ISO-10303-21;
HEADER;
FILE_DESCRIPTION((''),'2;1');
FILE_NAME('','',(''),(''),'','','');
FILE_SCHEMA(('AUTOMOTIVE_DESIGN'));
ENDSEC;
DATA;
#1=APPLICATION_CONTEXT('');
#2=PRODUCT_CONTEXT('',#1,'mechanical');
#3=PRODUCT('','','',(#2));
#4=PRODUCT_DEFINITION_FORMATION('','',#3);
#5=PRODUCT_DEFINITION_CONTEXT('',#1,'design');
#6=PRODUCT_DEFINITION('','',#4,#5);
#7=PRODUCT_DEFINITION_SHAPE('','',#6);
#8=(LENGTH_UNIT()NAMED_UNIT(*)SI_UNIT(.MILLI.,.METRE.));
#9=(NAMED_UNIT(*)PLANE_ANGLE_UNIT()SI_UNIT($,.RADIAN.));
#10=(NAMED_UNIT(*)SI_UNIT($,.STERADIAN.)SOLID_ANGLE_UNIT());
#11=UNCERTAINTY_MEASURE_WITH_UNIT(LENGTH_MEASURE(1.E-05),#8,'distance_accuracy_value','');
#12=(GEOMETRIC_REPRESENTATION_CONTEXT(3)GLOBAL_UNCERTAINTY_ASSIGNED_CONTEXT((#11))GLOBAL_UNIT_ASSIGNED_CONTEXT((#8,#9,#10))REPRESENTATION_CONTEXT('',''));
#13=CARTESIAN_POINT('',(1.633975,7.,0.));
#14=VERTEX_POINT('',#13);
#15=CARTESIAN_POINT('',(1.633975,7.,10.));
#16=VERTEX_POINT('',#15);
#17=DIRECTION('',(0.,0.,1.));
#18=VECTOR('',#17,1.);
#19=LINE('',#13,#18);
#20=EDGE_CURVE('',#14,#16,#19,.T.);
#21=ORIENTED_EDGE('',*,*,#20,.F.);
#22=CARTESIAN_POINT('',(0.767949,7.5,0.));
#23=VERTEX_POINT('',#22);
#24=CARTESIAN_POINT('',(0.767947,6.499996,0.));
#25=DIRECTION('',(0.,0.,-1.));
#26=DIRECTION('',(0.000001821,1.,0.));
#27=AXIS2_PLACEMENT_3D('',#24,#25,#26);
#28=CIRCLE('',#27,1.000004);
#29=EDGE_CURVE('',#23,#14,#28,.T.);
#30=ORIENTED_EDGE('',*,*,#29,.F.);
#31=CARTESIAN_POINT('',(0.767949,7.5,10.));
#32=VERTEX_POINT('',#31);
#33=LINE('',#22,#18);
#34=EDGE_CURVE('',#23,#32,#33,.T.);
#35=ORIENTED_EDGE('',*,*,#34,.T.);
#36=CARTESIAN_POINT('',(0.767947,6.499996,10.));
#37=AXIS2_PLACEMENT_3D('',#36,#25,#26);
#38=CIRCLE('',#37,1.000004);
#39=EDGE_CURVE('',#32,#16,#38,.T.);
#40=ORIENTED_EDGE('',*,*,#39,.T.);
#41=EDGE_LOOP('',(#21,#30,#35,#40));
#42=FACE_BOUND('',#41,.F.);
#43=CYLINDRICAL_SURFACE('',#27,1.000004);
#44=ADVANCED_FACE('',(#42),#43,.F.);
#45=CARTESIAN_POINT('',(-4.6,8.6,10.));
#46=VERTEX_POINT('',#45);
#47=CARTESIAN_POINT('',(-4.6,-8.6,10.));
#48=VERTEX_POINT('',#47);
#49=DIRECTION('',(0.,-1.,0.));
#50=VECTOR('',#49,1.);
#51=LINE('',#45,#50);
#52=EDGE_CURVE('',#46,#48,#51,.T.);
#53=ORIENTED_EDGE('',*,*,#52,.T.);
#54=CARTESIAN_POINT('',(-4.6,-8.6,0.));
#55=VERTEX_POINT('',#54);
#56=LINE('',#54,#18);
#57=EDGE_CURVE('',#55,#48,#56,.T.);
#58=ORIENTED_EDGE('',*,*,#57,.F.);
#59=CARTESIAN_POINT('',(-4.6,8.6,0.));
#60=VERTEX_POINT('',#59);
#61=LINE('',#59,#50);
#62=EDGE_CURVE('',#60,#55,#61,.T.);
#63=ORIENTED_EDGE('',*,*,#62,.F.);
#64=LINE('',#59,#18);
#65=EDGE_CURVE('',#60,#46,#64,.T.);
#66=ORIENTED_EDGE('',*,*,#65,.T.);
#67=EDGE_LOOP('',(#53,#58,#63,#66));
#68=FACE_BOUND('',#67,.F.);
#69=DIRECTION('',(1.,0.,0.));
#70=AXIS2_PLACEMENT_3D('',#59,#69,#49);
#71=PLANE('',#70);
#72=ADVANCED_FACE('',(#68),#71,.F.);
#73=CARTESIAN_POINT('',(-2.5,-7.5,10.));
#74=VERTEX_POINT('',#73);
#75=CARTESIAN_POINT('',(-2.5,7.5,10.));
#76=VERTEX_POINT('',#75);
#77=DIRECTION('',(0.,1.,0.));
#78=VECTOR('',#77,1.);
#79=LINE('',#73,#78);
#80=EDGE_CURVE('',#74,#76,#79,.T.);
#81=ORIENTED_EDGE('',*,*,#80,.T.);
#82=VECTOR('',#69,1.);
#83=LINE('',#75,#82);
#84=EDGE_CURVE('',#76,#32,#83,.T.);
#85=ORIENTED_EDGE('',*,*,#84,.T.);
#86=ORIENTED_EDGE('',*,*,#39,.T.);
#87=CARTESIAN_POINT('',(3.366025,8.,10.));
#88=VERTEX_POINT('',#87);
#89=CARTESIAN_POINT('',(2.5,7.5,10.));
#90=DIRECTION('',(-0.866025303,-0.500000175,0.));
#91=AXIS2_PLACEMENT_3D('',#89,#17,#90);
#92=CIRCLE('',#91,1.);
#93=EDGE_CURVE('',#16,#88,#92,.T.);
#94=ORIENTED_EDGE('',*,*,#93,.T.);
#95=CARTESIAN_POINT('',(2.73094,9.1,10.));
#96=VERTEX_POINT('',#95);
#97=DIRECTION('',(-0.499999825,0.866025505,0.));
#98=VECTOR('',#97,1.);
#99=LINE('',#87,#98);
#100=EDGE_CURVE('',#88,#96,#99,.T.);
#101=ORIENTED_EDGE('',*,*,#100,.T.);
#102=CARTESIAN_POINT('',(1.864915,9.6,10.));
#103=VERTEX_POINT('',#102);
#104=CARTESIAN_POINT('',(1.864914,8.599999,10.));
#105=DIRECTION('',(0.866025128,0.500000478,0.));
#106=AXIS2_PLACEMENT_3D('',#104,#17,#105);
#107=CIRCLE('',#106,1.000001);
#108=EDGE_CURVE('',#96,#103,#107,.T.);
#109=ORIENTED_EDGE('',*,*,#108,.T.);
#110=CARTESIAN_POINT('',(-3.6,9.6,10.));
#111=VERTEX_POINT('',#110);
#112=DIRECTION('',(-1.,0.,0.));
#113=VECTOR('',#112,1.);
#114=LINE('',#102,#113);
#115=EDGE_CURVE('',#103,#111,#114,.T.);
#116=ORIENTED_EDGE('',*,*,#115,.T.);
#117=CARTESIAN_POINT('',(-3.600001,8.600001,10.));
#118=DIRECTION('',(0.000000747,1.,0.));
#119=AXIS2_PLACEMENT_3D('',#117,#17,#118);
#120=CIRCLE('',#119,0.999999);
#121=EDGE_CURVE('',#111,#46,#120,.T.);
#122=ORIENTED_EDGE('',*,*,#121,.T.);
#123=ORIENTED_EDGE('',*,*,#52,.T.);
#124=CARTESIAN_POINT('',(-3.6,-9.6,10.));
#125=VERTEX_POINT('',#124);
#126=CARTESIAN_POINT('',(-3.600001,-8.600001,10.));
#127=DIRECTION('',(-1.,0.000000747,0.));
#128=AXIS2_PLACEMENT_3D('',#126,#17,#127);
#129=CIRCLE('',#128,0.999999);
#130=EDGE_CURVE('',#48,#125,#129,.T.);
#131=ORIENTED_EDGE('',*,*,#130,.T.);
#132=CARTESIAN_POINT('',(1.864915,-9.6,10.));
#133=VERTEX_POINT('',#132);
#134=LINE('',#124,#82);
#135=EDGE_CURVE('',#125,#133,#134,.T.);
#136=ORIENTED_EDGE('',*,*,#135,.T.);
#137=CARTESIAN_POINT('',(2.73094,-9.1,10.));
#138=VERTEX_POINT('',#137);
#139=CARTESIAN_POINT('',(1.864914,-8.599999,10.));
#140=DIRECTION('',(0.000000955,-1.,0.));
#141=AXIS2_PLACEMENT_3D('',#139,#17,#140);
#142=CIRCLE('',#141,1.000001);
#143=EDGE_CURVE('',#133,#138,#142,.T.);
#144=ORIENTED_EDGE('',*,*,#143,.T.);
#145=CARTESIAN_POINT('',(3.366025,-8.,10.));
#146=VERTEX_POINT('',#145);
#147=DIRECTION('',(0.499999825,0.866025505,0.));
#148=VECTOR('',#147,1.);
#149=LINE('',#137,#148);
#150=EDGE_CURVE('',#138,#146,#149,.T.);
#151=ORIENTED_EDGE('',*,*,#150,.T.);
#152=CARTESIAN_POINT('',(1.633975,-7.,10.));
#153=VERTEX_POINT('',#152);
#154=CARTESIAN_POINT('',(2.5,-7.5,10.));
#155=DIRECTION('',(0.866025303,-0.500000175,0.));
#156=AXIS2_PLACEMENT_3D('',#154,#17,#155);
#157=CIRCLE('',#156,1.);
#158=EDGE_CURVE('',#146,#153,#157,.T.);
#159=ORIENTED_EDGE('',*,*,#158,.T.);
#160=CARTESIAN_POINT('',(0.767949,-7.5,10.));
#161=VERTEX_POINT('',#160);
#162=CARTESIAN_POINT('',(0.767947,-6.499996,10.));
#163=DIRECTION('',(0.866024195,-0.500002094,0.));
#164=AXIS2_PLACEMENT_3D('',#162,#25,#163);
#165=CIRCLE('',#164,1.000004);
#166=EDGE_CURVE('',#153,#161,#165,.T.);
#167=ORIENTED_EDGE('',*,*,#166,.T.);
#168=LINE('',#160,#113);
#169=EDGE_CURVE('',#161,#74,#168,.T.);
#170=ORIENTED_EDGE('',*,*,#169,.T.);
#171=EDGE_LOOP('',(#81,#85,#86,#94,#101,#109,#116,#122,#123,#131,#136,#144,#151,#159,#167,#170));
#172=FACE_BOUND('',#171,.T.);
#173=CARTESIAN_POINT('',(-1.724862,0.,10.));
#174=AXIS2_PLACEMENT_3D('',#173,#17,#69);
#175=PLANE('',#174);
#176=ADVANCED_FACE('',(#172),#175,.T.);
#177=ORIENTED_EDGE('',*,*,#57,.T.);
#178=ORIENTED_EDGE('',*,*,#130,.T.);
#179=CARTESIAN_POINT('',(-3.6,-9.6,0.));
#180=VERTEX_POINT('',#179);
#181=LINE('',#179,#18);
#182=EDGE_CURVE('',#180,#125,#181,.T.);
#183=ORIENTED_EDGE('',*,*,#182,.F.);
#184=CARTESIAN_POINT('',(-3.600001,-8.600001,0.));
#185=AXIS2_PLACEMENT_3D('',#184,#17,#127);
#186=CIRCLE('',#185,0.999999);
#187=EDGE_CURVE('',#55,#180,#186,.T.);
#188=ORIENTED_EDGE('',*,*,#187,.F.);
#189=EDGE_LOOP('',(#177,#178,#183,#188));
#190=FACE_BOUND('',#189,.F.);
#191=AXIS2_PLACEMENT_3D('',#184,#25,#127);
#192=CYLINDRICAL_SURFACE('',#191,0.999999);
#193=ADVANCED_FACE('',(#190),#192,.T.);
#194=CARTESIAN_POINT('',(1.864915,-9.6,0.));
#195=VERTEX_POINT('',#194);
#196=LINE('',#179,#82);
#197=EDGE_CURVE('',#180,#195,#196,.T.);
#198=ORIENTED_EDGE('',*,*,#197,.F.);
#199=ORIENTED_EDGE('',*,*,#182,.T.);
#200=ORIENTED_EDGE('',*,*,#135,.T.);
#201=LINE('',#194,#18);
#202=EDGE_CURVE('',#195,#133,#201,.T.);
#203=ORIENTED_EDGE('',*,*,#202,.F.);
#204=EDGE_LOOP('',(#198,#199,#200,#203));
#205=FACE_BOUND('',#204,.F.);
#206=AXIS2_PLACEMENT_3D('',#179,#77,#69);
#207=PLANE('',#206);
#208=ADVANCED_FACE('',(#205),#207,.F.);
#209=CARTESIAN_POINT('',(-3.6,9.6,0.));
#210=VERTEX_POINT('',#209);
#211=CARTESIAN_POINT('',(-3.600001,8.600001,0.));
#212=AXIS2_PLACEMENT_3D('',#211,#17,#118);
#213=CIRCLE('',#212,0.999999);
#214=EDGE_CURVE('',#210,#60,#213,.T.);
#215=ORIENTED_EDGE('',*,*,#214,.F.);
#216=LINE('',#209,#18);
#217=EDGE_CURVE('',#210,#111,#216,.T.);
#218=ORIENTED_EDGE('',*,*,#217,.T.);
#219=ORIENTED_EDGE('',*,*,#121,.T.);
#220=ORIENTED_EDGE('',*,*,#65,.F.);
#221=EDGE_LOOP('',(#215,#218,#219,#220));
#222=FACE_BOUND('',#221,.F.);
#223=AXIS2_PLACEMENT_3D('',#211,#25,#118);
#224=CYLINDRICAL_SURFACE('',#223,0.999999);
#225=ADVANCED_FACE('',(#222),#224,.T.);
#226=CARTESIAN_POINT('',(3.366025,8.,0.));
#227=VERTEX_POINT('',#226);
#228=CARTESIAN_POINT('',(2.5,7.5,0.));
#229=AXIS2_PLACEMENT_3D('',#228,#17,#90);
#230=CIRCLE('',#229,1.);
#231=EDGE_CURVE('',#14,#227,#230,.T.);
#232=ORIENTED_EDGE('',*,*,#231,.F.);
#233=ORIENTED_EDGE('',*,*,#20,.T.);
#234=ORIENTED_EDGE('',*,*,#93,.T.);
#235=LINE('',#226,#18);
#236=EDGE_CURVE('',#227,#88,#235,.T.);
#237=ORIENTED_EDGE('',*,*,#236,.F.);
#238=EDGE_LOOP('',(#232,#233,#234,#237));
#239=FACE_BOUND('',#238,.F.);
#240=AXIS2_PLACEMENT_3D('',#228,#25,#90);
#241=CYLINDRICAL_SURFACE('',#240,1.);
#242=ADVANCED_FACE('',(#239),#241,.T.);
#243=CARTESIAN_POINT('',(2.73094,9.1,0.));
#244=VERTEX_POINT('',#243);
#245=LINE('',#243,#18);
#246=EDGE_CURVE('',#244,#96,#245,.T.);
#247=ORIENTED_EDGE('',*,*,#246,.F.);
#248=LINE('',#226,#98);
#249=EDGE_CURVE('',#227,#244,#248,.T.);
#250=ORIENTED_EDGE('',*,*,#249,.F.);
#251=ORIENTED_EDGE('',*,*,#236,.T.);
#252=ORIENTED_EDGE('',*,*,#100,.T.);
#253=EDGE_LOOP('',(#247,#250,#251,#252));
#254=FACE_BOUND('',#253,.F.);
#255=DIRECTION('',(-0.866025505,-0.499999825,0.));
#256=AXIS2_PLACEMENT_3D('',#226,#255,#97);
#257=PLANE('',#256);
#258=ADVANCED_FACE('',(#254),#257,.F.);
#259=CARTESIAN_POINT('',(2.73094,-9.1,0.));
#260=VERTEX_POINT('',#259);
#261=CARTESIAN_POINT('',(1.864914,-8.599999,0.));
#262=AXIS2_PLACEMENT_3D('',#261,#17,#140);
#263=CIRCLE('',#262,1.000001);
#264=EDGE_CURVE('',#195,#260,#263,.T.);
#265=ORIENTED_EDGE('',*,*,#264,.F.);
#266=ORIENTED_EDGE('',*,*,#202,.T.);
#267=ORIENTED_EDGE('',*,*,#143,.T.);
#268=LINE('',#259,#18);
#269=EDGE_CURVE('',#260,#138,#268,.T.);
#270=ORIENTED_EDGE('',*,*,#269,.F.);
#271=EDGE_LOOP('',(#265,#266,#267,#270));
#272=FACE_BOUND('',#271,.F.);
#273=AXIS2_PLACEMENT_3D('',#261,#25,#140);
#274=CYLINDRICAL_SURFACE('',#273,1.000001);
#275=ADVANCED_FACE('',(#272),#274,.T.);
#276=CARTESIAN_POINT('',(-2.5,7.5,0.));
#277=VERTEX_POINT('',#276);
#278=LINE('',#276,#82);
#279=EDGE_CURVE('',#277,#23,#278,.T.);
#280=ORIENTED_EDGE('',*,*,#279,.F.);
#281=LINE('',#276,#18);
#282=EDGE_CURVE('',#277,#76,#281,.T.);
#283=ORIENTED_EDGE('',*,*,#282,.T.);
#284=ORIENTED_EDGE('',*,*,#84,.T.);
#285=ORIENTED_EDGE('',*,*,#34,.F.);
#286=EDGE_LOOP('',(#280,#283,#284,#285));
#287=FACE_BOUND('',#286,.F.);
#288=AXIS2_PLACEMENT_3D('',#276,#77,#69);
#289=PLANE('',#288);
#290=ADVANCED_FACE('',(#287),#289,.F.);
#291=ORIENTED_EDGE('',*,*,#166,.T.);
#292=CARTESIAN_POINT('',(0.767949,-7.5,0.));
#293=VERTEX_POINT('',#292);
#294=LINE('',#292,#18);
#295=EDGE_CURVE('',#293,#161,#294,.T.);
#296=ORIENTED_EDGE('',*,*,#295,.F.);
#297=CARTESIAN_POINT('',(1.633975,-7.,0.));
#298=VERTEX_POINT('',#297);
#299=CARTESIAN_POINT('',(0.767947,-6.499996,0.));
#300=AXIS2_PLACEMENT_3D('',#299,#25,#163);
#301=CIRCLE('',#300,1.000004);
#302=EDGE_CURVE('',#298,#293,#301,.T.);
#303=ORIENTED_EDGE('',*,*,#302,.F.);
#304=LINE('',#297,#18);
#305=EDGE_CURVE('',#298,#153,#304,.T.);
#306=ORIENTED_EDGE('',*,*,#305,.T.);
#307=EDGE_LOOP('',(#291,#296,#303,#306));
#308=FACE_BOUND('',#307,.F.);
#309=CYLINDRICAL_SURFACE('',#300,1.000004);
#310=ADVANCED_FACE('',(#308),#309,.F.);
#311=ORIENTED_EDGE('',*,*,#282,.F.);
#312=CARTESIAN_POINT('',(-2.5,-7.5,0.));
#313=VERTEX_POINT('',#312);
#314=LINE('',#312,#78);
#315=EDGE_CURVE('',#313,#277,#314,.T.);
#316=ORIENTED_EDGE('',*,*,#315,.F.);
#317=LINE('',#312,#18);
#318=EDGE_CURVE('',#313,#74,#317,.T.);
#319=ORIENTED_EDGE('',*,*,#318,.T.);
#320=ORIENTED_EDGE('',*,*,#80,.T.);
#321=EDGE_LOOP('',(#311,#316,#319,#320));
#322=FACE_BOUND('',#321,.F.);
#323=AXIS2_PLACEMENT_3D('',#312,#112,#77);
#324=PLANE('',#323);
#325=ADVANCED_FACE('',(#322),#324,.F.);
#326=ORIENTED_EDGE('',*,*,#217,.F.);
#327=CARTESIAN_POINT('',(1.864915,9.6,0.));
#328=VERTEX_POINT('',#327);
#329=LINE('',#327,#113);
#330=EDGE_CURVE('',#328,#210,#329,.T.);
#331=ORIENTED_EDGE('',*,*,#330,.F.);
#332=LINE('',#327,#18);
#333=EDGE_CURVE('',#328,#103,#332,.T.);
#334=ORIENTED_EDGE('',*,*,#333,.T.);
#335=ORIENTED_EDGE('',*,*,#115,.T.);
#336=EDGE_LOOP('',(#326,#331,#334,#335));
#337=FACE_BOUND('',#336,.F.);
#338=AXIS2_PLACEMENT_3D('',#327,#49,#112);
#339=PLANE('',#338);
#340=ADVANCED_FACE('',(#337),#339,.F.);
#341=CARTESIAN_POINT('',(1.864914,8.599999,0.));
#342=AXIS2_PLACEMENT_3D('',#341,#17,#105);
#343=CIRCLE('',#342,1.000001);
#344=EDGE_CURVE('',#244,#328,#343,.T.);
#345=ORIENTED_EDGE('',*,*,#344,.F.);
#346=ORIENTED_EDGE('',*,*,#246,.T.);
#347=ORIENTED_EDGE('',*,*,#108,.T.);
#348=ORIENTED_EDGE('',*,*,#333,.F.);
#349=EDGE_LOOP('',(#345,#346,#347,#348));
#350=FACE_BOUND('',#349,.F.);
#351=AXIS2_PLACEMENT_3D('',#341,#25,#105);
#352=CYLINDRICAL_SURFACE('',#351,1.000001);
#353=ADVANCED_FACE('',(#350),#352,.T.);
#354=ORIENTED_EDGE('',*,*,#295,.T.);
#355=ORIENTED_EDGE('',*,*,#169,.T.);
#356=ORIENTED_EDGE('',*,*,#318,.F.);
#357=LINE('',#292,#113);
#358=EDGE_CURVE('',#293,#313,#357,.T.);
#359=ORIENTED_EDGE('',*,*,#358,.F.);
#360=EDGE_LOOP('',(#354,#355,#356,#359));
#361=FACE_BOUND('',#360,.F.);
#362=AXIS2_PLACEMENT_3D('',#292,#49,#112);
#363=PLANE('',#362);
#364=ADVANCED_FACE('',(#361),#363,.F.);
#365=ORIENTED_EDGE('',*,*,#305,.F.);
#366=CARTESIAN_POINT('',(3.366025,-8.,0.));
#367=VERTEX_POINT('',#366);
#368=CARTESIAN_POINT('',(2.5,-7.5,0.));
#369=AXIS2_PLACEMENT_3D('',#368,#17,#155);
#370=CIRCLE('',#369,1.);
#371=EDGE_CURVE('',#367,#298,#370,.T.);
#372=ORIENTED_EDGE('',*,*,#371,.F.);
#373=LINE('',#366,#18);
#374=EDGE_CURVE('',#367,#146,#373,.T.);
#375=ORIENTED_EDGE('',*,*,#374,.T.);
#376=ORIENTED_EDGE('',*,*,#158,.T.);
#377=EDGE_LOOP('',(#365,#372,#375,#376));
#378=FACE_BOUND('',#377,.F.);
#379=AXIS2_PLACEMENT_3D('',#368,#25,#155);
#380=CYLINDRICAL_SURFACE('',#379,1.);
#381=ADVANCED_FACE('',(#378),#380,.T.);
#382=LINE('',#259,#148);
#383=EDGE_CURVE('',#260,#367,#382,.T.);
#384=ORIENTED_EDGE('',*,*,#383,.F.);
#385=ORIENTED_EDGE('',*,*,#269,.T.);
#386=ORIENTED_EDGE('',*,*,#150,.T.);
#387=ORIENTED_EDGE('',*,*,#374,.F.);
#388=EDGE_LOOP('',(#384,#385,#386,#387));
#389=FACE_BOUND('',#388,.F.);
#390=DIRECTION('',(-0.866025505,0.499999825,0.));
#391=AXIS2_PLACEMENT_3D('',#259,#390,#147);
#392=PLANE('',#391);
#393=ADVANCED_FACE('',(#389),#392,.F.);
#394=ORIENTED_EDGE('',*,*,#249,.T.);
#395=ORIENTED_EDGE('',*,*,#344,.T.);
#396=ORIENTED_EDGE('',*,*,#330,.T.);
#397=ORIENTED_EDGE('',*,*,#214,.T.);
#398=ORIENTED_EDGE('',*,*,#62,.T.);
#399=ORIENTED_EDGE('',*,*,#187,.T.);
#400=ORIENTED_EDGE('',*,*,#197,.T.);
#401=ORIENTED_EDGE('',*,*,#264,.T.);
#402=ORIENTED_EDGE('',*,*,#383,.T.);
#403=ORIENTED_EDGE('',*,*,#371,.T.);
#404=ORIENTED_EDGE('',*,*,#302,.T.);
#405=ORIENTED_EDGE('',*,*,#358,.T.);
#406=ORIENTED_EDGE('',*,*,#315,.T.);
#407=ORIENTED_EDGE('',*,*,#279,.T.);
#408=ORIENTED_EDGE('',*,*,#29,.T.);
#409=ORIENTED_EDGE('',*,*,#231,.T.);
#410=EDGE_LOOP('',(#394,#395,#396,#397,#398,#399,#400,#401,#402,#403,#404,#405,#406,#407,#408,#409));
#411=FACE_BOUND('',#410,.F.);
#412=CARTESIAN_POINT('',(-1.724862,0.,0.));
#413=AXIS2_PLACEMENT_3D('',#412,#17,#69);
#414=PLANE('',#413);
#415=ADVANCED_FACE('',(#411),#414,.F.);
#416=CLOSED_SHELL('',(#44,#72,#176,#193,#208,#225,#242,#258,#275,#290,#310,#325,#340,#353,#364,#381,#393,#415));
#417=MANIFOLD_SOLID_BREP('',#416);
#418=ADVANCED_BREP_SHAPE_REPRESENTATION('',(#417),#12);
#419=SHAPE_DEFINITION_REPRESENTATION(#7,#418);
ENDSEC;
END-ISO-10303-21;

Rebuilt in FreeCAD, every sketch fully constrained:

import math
import FreeCAD as App
import Part
import Sketcher

V = App.Vector
Q = App.Units.Quantity

doc = App.newDocument("Part")
body = doc.addObject("PartDesign::Body", "Body")

# Sketch on XY plane
sketch1 = doc.addObject("Sketcher::SketchObject", "Sketch")
body.addObject(sketch1)
sketch1.AttachmentSupport = (doc.XY_Plane, [""])
sketch1.MapMode = "FlatFace"
sketch1.addGeometry([
    Part.LineSegment(V(-2.5, -7.5, 0), V(-2.5, 7.5, 0)),  # 0
    Part.LineSegment(V(-2.5, 7.5, 0), V(0.767949, 7.5, 0)),  # 1
    Part.ArcOfCircle(Part.Circle(V(0.767947, 6.499996, 0), V(0, 0, 1), 1.000004), math.radians(30.000139), math.radians(89.999896)),  # 2
    Part.ArcOfCircle(Part.Circle(V(2.5, 7.5, 0), V(0, 0, 1), 1), math.radians(-149.999988), math.radians(30.000012)),  # 3
    Part.LineSegment(V(3.366025, 8, 0), V(2.73094, 9.1, 0)),  # 4
    Part.ArcOfCircle(Part.Circle(V(1.864914, 8.599999, 0), V(0, 0, 1), 1.000001), math.radians(30.000032), math.radians(89.999945)),  # 5
    Part.LineSegment(V(1.864915, 9.6, 0), V(-3.6, 9.6, 0)),  # 6
    Part.ArcOfCircle(Part.Circle(V(-3.600001, 8.600001, 0), V(0, 0, 1), 0.999999), math.radians(89.999957), math.radians(180.000043)),  # 7
    Part.LineSegment(V(-4.6, 8.6, 0), V(-4.6, -8.6, 0)),  # 8
    Part.ArcOfCircle(Part.Circle(V(-3.600001, -8.600001, 0), V(0, 0, 1), 0.999999), math.radians(179.999957), math.radians(270.000043)),  # 9
    Part.LineSegment(V(-3.6, -9.6, 0), V(1.864915, -9.6, 0)),  # 10
    Part.ArcOfCircle(Part.Circle(V(1.864914, -8.599999, 0), V(0, 0, 1), 1.000001), math.radians(-89.999945), math.radians(-30.000032)),  # 11
    Part.LineSegment(V(2.73094, -9.1, 0), V(3.366025, -8, 0)),  # 12
    Part.ArcOfCircle(Part.Circle(V(2.5, -7.5, 0), V(0, 0, 1), 1), math.radians(-30.000012), math.radians(149.999988)),  # 13
    Part.ArcOfCircle(Part.Circle(V(0.767947, -6.499996, 0), V(0, 0, 1), 1.000004), math.radians(-89.999896), math.radians(-30.000139)),  # 14
    Part.LineSegment(V(0.767949, -7.5, 0), V(-2.5, -7.5, 0)),  # 15
], False)
sketch1.addConstraint([
    Sketcher.Constraint("Coincident", 0, 2, 1, 1),
    Sketcher.Constraint("Tangent", 1, 2, 2, 2),
    Sketcher.Constraint("Coincident", 2, 1, 3, 1),
    Sketcher.Constraint("Tangent", 3, 2, 4, 1),
    Sketcher.Constraint("Tangent", 4, 2, 5, 1),
    Sketcher.Constraint("Tangent", 5, 2, 6, 1),
    Sketcher.Constraint("Tangent", 6, 2, 7, 1),
    Sketcher.Constraint("Tangent", 7, 2, 8, 1),
    Sketcher.Constraint("Tangent", 8, 2, 9, 1),
    Sketcher.Constraint("Tangent", 9, 2, 10, 1),
    Sketcher.Constraint("Tangent", 10, 2, 11, 1),
    Sketcher.Constraint("Tangent", 11, 2, 12, 1),
    Sketcher.Constraint("Tangent", 12, 2, 13, 1),
    Sketcher.Constraint("Coincident", 13, 2, 14, 2),
    Sketcher.Constraint("Tangent", 14, 1, 15, 1),
    Sketcher.Constraint("Coincident", 15, 2, 0, 1),
    Sketcher.Constraint("Vertical", 0),
    Sketcher.Constraint("Horizontal", 1),
    Sketcher.Constraint("Horizontal", 6),
    Sketcher.Constraint("Vertical", 8),
    Sketcher.Constraint("Horizontal", 10),
    Sketcher.Constraint("Horizontal", 15),
    Sketcher.Constraint("Equal", 3, 5),
    Sketcher.Constraint("Equal", 5, 7),
    Sketcher.Constraint("Equal", 7, 9),
    Sketcher.Constraint("Equal", 9, 11),
    Sketcher.Constraint("Equal", 11, 13),
    Sketcher.Constraint("Equal", 2, 14),
    Sketcher.Constraint("Symmetric", 5, 3, 11, 3, -1),
    Sketcher.Constraint("Symmetric", 3, 3, 13, 3, -1),
    Sketcher.Constraint("Horizontal", 3, 3, 0, 2),
    Sketcher.Constraint("Horizontal", 13, 3, 14, 1),
    Sketcher.Constraint("Vertical", 2, 1, 13, 2),
    Sketcher.Constraint("Radius", 3, 1.0),
    Sketcher.Constraint("DistanceY", 0, 1, 0, 2, 15.0),
    Sketcher.Constraint("Angle", 4, Q("119.999988 deg")),
    Sketcher.Constraint("DistanceY", 8, 2, 8, 1, 17.2),
    Sketcher.Constraint("DistanceY", -1, 1, 2, 1, 7.0),
    Sketcher.Constraint("DistanceX", 0, 2, 3, 3, 5.0),
    Sketcher.Constraint("DistanceX", -1, 1, 3, 3, 2.5),
    Sketcher.Constraint("DistanceX", 7, 3, -1, 1, 3.600001),
    Sketcher.Constraint("Radius", 2, 1.000004),
])
pad1 = doc.addObject("PartDesign::Pad", "Pad")
body.addObject(pad1)
pad1.Profile = sketch1
pad1.Length = 10

doc.recompute()
